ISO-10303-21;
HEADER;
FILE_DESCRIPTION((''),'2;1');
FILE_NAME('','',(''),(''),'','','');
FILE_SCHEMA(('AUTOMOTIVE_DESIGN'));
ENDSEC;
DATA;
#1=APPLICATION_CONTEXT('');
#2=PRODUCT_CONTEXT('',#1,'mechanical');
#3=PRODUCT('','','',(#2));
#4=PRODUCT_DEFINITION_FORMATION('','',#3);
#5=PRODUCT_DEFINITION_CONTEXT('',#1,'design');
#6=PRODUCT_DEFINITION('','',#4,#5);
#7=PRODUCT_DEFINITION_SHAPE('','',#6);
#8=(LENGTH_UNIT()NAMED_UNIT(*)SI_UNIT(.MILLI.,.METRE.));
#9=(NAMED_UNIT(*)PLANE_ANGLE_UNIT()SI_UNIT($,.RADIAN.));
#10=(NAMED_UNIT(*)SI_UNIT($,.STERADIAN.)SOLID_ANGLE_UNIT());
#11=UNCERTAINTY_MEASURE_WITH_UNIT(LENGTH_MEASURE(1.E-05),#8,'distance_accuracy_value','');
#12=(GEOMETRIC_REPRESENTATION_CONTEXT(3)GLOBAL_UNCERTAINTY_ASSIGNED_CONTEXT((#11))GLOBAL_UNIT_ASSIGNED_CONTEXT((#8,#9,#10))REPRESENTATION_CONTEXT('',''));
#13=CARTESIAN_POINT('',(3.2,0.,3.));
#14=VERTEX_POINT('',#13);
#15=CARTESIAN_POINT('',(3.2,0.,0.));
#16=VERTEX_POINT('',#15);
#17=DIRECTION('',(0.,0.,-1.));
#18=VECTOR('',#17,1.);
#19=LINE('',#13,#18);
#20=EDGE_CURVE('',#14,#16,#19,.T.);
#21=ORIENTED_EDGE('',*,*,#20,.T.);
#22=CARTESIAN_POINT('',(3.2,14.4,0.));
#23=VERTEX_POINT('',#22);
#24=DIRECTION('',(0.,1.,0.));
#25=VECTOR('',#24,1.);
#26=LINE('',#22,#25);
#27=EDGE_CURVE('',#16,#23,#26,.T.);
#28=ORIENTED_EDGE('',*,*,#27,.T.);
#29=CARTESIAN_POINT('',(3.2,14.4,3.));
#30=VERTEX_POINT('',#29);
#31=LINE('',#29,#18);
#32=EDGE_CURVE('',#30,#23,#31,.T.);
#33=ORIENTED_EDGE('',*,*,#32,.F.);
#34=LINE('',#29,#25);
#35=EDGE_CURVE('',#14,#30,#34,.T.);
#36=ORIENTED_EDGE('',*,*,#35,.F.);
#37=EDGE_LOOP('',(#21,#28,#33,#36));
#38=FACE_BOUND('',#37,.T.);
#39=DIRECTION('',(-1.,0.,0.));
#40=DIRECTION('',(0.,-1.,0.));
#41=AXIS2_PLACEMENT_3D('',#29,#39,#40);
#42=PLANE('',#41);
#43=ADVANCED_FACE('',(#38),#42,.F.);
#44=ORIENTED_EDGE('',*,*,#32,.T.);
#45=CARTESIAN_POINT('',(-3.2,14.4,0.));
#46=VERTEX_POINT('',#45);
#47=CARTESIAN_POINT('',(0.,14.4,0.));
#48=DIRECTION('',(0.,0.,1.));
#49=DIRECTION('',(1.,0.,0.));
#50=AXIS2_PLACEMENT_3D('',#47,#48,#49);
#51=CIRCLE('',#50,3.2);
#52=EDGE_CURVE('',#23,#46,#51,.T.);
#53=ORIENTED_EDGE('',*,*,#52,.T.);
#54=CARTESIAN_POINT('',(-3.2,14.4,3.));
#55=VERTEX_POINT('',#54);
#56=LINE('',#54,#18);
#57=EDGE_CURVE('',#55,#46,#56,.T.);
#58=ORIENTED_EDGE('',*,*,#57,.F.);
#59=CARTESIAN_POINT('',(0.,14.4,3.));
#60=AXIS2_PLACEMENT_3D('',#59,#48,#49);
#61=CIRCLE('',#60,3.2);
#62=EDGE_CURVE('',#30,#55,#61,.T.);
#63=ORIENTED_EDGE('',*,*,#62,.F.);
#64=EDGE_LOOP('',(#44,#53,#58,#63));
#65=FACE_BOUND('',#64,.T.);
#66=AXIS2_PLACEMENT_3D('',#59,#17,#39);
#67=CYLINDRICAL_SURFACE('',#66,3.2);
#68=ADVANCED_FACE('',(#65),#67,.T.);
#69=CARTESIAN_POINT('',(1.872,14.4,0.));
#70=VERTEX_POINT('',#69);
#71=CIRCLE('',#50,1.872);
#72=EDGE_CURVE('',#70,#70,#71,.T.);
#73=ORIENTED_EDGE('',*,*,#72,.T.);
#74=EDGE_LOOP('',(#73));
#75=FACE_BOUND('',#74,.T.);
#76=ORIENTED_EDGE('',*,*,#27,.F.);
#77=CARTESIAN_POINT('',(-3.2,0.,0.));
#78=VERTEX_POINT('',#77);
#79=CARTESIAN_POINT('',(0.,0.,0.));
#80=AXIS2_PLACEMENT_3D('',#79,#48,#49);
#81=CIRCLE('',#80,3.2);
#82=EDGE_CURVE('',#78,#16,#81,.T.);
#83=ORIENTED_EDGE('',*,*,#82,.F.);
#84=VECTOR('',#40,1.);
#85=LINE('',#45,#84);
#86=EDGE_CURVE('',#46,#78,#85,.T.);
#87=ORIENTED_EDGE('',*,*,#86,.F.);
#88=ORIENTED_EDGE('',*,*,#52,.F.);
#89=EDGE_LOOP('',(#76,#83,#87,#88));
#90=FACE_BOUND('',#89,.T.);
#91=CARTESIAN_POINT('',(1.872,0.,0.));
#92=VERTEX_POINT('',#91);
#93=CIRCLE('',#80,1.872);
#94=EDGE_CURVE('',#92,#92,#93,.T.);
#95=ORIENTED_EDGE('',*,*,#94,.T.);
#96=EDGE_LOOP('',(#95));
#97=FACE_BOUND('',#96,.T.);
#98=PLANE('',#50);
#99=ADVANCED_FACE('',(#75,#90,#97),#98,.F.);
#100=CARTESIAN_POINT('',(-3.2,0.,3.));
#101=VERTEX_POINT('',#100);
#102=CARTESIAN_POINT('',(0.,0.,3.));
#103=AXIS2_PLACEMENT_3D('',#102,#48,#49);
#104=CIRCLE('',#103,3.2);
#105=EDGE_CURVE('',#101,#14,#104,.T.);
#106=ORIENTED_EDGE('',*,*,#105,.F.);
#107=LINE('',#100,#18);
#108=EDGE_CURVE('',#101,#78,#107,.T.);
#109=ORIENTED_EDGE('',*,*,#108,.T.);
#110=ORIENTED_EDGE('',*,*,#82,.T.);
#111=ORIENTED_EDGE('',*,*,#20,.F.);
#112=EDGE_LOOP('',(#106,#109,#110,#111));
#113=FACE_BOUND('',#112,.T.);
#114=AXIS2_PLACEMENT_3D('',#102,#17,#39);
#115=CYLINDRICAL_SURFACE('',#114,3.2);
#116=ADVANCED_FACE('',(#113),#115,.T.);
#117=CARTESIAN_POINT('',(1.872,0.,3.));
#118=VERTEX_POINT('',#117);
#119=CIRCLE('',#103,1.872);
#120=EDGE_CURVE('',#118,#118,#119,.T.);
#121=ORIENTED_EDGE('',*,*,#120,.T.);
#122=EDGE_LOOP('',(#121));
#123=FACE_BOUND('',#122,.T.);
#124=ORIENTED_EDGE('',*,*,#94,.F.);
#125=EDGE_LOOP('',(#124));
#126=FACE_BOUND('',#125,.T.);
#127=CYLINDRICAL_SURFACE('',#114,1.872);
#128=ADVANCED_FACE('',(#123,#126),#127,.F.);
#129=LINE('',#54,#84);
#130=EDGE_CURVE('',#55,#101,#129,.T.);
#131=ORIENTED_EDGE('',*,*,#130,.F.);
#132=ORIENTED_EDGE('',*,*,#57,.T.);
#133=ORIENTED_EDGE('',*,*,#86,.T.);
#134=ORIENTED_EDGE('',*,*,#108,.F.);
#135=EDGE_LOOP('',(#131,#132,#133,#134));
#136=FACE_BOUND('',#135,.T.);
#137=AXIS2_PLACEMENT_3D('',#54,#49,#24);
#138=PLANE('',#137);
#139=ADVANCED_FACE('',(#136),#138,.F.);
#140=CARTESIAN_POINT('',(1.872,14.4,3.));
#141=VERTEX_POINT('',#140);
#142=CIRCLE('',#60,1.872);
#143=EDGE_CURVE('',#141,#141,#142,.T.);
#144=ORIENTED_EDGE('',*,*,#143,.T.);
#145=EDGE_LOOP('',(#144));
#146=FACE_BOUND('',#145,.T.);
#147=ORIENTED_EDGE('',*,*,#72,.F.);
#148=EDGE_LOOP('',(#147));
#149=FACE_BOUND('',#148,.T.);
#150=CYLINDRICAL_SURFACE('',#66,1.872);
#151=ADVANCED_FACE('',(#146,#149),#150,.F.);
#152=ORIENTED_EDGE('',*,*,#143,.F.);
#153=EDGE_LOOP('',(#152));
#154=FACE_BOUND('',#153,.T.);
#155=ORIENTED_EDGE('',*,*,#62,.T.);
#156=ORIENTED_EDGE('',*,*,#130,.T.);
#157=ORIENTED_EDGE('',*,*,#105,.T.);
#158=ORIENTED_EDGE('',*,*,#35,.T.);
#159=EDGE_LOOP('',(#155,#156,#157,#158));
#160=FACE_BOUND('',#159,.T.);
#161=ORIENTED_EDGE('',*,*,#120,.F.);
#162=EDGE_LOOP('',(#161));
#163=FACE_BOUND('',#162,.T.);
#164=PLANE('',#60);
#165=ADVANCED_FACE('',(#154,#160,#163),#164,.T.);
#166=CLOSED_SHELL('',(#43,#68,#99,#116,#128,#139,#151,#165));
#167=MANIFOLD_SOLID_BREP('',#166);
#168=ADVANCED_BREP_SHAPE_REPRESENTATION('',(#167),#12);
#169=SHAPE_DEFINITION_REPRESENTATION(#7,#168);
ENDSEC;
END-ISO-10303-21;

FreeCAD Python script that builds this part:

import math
import FreeCAD as App
import Part
import Sketcher

V = App.Vector

doc = App.newDocument("Part")
body = doc.addObject("PartDesign::Body", "Body")

# Sketch on XY plane
sketch1 = body.newObject("Sketcher::SketchObject", "Sketch")
sketch1.AttachmentSupport = (doc.getObject("XY_Plane"), [""])
sketch1.MapMode = "FlatFace"
sketch1.addGeometry([
    Part.LineSegment(V(-3.2, 14.4, 0), V(-3.2, 0, 0)),  # 0
    Part.ArcOfCircle(Part.Circle(V(0, 0, 0), V(0, 0, 1), 3.2), math.radians(180), math.radians(360)),  # 1
    Part.LineSegment(V(3.2, 0, 0), V(3.2, 14.4, 0)),  # 2
    Part.ArcOfCircle(Part.Circle(V(0, 14.4, 0), V(0, 0, 1), 3.2), math.radians(0), math.radians(180)),  # 3
    Part.Circle(V(0, 0, 0), V(0, 0, 1), 1.9),  # 4
    Part.Circle(V(0, 14.4, 0), V(0, 0, 1), 1.9),  # 5
], False)
sketch1.addConstraint([
    Sketcher.Constraint("Tangent", 0, 2, 1, 1),
    Sketcher.Constraint("Tangent", 1, 2, 2, 1),
    Sketcher.Constraint("Tangent", 2, 2, 3, 1),
    Sketcher.Constraint("Tangent", 3, 2, 0, 1),
    Sketcher.Constraint("Vertical", 0),
    Sketcher.Constraint("Vertical", 2),
    Sketcher.Constraint("Coincident", 1, 3, -1, 1),
    Sketcher.Constraint("Coincident", 4, 3, -1, 1),
    Sketcher.Constraint("Coincident", 5, 3, 3, 3),
    Sketcher.Constraint("Equal", 4, 5),
    Sketcher.Constraint("Radius", 1, 3.2),
    Sketcher.Constraint("Diameter", 4, 3.744),
    Sketcher.Constraint("DistanceY", 0, 2, 0, 1, 14.4),
])
pad1 = body.newObject("PartDesign::Pad", "Pad")
pad1.Profile = sketch1
pad1.Length = 3

doc.recompute()
